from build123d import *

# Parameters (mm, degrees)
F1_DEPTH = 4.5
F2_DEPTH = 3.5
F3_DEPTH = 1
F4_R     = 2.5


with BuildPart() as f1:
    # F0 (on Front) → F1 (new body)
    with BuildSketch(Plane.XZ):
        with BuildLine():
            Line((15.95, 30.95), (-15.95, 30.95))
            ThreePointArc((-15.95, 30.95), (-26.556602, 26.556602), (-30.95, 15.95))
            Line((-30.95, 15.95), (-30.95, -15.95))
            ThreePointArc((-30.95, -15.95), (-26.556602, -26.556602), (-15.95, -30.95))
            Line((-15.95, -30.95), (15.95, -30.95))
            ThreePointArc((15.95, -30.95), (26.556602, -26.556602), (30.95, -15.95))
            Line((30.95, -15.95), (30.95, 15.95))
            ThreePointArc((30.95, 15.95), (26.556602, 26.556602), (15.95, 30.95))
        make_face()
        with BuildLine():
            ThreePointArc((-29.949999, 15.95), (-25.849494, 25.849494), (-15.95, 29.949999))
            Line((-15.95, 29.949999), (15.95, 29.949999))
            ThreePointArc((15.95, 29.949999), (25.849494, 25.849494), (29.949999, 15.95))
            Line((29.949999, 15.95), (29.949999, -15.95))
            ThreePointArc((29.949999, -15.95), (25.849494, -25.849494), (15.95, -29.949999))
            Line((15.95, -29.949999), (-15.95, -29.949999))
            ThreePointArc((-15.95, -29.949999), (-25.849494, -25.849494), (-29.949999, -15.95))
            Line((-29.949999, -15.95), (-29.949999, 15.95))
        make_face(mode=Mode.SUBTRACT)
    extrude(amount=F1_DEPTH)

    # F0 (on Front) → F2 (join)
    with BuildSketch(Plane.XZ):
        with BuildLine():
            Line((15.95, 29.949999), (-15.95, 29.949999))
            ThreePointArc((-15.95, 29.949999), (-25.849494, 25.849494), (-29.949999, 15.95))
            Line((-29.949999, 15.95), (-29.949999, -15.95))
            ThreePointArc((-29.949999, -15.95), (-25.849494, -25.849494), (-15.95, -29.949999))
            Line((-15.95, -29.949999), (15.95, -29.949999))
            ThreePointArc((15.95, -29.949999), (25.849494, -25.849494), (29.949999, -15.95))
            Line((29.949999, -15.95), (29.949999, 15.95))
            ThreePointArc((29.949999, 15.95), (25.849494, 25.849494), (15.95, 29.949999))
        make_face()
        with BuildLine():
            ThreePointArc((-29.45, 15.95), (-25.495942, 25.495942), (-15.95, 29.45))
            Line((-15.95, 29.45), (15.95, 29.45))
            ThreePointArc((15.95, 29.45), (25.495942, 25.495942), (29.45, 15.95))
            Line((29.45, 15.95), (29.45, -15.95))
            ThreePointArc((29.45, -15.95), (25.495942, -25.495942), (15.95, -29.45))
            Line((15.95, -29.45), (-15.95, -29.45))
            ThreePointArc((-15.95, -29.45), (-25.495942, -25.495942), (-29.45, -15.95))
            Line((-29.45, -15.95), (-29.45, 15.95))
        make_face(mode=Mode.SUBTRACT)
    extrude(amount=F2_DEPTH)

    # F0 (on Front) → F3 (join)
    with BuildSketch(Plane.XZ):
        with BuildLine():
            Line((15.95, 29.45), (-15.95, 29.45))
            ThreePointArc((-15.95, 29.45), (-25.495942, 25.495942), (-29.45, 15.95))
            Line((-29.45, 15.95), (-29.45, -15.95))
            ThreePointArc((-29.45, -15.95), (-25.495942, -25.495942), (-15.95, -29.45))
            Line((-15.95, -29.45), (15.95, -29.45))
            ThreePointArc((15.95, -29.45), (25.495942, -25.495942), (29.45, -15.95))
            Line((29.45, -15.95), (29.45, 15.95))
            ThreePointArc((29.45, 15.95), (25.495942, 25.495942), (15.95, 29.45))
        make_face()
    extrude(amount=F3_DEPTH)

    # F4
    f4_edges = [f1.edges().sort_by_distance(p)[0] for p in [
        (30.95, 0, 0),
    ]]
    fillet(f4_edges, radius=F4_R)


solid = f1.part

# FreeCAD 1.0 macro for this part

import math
import FreeCAD as App
import Part
import Sketcher

V = App.Vector


def edges_at(feature, points):
    """Names of the edges that pass closest to the given points."""
    edges = feature.Shape.Edges
    near = lambda p: min(range(len(edges)), key=lambda i: edges[i].distToShape(Part.Vertex(*p))[0])
    return sorted({f"Edge{near(p) + 1}" for p in points})

doc = App.newDocument("Part")
body = doc.addObject("PartDesign::Body", "Body")

sketch1 = body.newObject("Sketcher::SketchObject", "Sketch")
sketch1.AttachmentSupport = (doc.getObject("XZ_Plane"), [""])
sketch1.MapMode = "FlatFace"
sketch1.addGeometry([
    Part.LineSegment(V(15.95, 30.95, 0), V(-15.95, 30.95, 0)),
    Part.ArcOfCircle(Part.Circle(V(-15.950001, 15.950001, 0), V(0, 0, 1), 14.999999), math.radians(89.999996), math.radians(180.000004)),
    Part.LineSegment(V(-30.95, 15.95, 0), V(-30.95, -15.95, 0)),
    Part.ArcOfCircle(Part.Circle(V(-15.950001, -15.950001, 0), V(0, 0, 1), 14.999999), math.radians(179.999996), math.radians(270.000004)),
    Part.LineSegment(V(-15.95, -30.95, 0), V(15.95, -30.95, 0)),
    Part.ArcOfCircle(Part.Circle(V(15.950001, -15.950001, 0), V(0, 0, 1), 14.999999), math.radians(-90.000004), math.radians(0.000004)),
    Part.LineSegment(V(30.95, -15.95, 0), V(30.95, 15.95, 0)),
    Part.ArcOfCircle(Part.Circle(V(15.950001, 15.950001, 0), V(0, 0, 1), 14.999999), math.radians(-0.000004), math.radians(90.000004)),
    Part.LineSegment(V(-29.949999, -15.95, 0), V(-29.949999, 15.95, 0)),
    Part.ArcOfCircle(Part.Circle(V(-15.949999, 15.949999, 0), V(0, 0, 1), 14), math.radians(90.000003), math.radians(179.999997)),
    Part.LineSegment(V(-15.95, 29.949999, 0), V(15.95, 29.949999, 0)),
    Part.ArcOfCircle(Part.Circle(V(15.949999, 15.949999, 0), V(0, 0, 1), 14), math.radians(0.000003), math.radians(89.999997)),
    Part.LineSegment(V(29.949999, 15.95, 0), V(29.949999, -15.95, 0)),
    Part.ArcOfCircle(Part.Circle(V(15.949999, -15.949999, 0), V(0, 0, 1), 14), math.radians(-89.999997), math.radians(-0.000003)),
    Part.LineSegment(V(15.95, -29.949999, 0), V(-15.95, -29.949999, 0)),
    Part.ArcOfCircle(Part.Circle(V(-15.949999, -15.949999, 0), V(0, 0, 1), 14), math.radians(-179.999997), math.radians(-90.000003)),
], False)
sketch1.addConstraint([
    Sketcher.Constraint("Tangent", 0, 2, 1, 1),
    Sketcher.Constraint("Tangent", 1, 2, 2, 1),
    Sketcher.Constraint("Tangent", 2, 2, 3, 1),
    Sketcher.Constraint("Tangent", 3, 2, 4, 1),
    Sketcher.Constraint("Tangent", 4, 2, 5, 1),
    Sketcher.Constraint("Tangent", 5, 2, 6, 1),
    Sketcher.Constraint("Tangent", 6, 2, 7, 1),
    Sketcher.Constraint("Tangent", 7, 2, 0, 1),
    Sketcher.Constraint("Tangent", 8, 2, 9, 2),
    Sketcher.Constraint("Tangent", 9, 1, 10, 1),
    Sketcher.Constraint("Tangent", 10, 2, 11, 2),
    Sketcher.Constraint("Tangent", 11, 1, 12, 1),
    Sketcher.Constraint("Tangent", 12, 2, 13, 2),
    Sketcher.Constraint("Tangent", 13, 1, 14, 1),
    Sketcher.Constraint("Tangent", 14, 2, 15, 2),
    Sketcher.Constraint("Tangent", 15, 1, 8, 1),
    Sketcher.Constraint("Horizontal", 0),
    Sketcher.Constraint("Vertical", 2),
    Sketcher.Constraint("Horizontal", 4),
    Sketcher.Constraint("Vertical", 6),
    Sketcher.Constraint("Vertical", 8),
    Sketcher.Constraint("Horizontal", 10),
    Sketcher.Constraint("Vertical", 12),
    Sketcher.Constraint("Horizontal", 14),
    Sketcher.Constraint("Coincident", 9, 3, 1, 3),
    Sketcher.Constraint("Coincident", 11, 3, 7, 3),
    Sketcher.Constraint("Coincident", 13, 3, 5, 3),
    Sketcher.Constraint("Equal", 1, 3),
    Sketcher.Constraint("Equal", 3, 5),
    Sketcher.Constraint("Equal", 5, 7),
    Sketcher.Constraint("Equal", 13, 15),
    Sketcher.Constraint("Symmetric", 1, 3, 5, 3, -1, 1),
    Sketcher.Constraint("Equal", 14, 2),
    Sketcher.Constraint("Radius", 1, 14.999999),
    Sketcher.Constraint("Radius", 9, 14.0),
    Sketcher.Constraint("DistanceX", 0, 2, 0, 1, 31.9),
])
pad1 = body.newObject("PartDesign::Pad", "Pad")
pad1.Profile = sketch1
pad1.Length = 4.5

sketch2 = body.newObject("Sketcher::SketchObject", "Sketch001")
sketch2.AttachmentSupport = (doc.getObject("XZ_Plane"), [""])
sketch2.MapMode = "FlatFace"
sketch2.addGeometry([
    Part.LineSegment(V(15.95, 29.949999, 0), V(-15.95, 29.949999, 0)),
    Part.ArcOfCircle(Part.Circle(V(-15.949999, 15.949999, 0), V(0, 0, 1), 14), math.radians(90.000003), math.radians(179.999997)),
    Part.LineSegment(V(-29.949999, 15.95, 0), V(-29.949999, -15.95, 0)),
    Part.ArcOfCircle(Part.Circle(V(-15.949999, -15.949999, 0), V(0, 0, 1), 14), math.radians(-179.999997), math.radians(-90.000003)),
    Part.LineSegment(V(-15.95, -29.949999, 0), V(15.95, -29.949999, 0)),
    Part.ArcOfCircle(Part.Circle(V(15.949999, -15.949999, 0), V(0, 0, 1), 14), math.radians(-89.999997), math.radians(-0.000003)),
    Part.LineSegment(V(29.949999, -15.95, 0), V(29.949999, 15.95, 0)),
    Part.ArcOfCircle(Part.Circle(V(15.949999, 15.949999, 0), V(0, 0, 1), 14), math.radians(0.000003), math.radians(89.999997)),
    Part.LineSegment(V(-29.45, -15.95, 0), V(-29.45, 15.95, 0)),
    Part.ArcOfCircle(Part.Circle(V(-15.950002, 15.950002, 0), V(0, 0, 1), 13.499998), math.radians(89.999993), math.radians(180.000007)),
    Part.LineSegment(V(-15.95, 29.45, 0), V(15.95, 29.45, 0)),
    Part.ArcOfCircle(Part.Circle(V(15.950002, 15.950002, 0), V(0, 0, 1), 13.499998), math.radians(-0.000007), math.radians(90.000007)),
    Part.LineSegment(V(29.45, 15.95, 0), V(29.45, -15.95, 0)),
    Part.ArcOfCircle(Part.Circle(V(15.950002, -15.950002, 0), V(0, 0, 1), 13.499998), math.radians(-90.000007), math.radians(0.000007)),
    Part.LineSegment(V(15.95, -29.45, 0), V(-15.95, -29.45, 0)),
    Part.ArcOfCircle(Part.Circle(V(-15.950002, -15.950002, 0), V(0, 0, 1), 13.499998), math.radians(179.999993), math.radians(270.000007)),
], False)
sketch2.addConstraint([
    Sketcher.Constraint("Tangent", 0, 2, 1, 1),
    Sketcher.Constraint("Tangent", 1, 2, 2, 1),
    Sketcher.Constraint("Tangent", 2, 2, 3, 1),
    Sketcher.Constraint("Tangent", 3, 2, 4, 1),
    Sketcher.Constraint("Tangent", 4, 2, 5, 1),
    Sketcher.Constraint("Tangent", 5, 2, 6, 1),
    Sketcher.Constraint("Tangent", 6, 2, 7, 1),
    Sketcher.Constraint("Tangent", 7, 2, 0, 1),
    Sketcher.Constraint("Tangent", 8, 2, 9, 2),
    Sketcher.Constraint("Tangent", 9, 1, 10, 1),
    Sketcher.Constraint("Tangent", 10, 2, 11, 2),
    Sketcher.Constraint("Tangent", 11, 1, 12, 1),
    Sketcher.Constraint("Tangent", 12, 2, 13, 2),
    Sketcher.Constraint("Tangent", 13, 1, 14, 1),
    Sketcher.Constraint("Tangent", 14, 2, 15, 2),
    Sketcher.Constraint("Tangent", 15, 1, 8, 1),
    Sketcher.Constraint("Horizontal", 0),
    Sketcher.Constraint("Vertical", 2),
    Sketcher.Constraint("Horizontal", 4),
    Sketcher.Constraint("Vertical", 6),
    Sketcher.Constraint("Vertical", 8),
    Sketcher.Constraint("Horizontal", 10),
    Sketcher.Constraint("Vertical", 12),
    Sketcher.Constraint("Horizontal", 14),
    Sketcher.Constraint("Coincident", 9, 3, 1, 3),
    Sketcher.Constraint("Coincident", 11, 3, 7, 3),
    Sketcher.Constraint("Coincident", 13, 3, 5, 3),
    Sketcher.Constraint("Equal", 1, 3),
    Sketcher.Constraint("Equal", 3, 5),
    Sketcher.Constraint("Equal", 5, 7),
    Sketcher.Constraint("Equal", 13, 15),
    Sketcher.Constraint("Symmetric", 1, 3, 5, 3, -1, 1),
    Sketcher.Constraint("Equal", 14, 2),
    Sketcher.Constraint("Radius", 1, 14.0),
    Sketcher.Constraint("Radius", 9, 13.499998),
    Sketcher.Constraint("DistanceX", 0, 2, 0, 1, 31.9),
])
pad2 = body.newObject("PartDesign::Pad", "Pad001")
pad2.Profile = sketch2
pad2.Length = 3.5

sketch3 = body.newObject("Sketcher::SketchObject", "Sketch002")
sketch3.AttachmentSupport = (doc.getObject("XZ_Plane"), [""])
sketch3.MapMode = "FlatFace"
sketch3.addGeometry([
    Part.LineSegment(V(15.95, 29.45, 0), V(-15.95, 29.45, 0)),
    Part.ArcOfCircle(Part.Circle(V(-15.950002, 15.950002, 0), V(0, 0, 1), 13.499998), math.radians(89.999993), math.radians(180.000007)),
    Part.LineSegment(V(-29.45, 15.95, 0), V(-29.45, -15.95, 0)),
    Part.ArcOfCircle(Part.Circle(V(-15.950002, -15.950002, 0), V(0, 0, 1), 13.499998), math.radians(179.999993), math.radians(270.000007)),
    Part.LineSegment(V(-15.95, -29.45, 0), V(15.95, -29.45, 0)),
    Part.ArcOfCircle(Part.Circle(V(15.950002, -15.950002, 0), V(0, 0, 1), 13.499998), math.radians(-90.000007), math.radians(0.000007)),
    Part.LineSegment(V(29.45, -15.95, 0), V(29.45, 15.95, 0)),
    Part.ArcOfCircle(Part.Circle(V(15.950002, 15.950002, 0), V(0, 0, 1), 13.499998), math.radians(-0.000007), math.radians(90.000007)),
], False)
sketch3.addConstraint([
    Sketcher.Constraint("Tangent", 0, 2, 1, 1),
    Sketcher.Constraint("Tangent", 1, 2, 2, 1),
    Sketcher.Constraint("Tangent", 2, 2, 3, 1),
    Sketcher.Constraint("Tangent", 3, 2, 4, 1),
    Sketcher.Constraint("Tangent", 4, 2, 5, 1),
    Sketcher.Constraint("Tangent", 5, 2, 6, 1),
    Sketcher.Constraint("Tangent", 6, 2, 7, 1),
    Sketcher.Constraint("Tangent", 7, 2, 0, 1),
    Sketcher.Constraint("Horizontal", 0),
    Sketcher.Constraint("Vertical", 2),
    Sketcher.Constraint("Horizontal", 4),
    Sketcher.Constraint("Vertical", 6),
    Sketcher.Constraint("Equal", 1, 3),
    Sketcher.Constraint("Equal", 3, 5),
    Sketcher.Constraint("Equal", 5, 7),
    Sketcher.Constraint("Symmetric", 1, 3, 5, 3, -1, 1),
    Sketcher.Constraint("Equal", 4, 2),
    Sketcher.Constraint("Radius", 1, 13.499998),
    Sketcher.Constraint("DistanceX", 0, 2, 0, 1, 31.9),
])
pad3 = body.newObject("PartDesign::Pad", "Pad002")
pad3.Profile = sketch3
pad3.Length = 1
doc.recompute()

fillet = body.newObject("PartDesign::Fillet", "Fillet")
fillet.Base = (pad3, edges_at(pad3, [(30.95, 0, 0)]))
fillet.Radius = 2.5

doc.recompute()
